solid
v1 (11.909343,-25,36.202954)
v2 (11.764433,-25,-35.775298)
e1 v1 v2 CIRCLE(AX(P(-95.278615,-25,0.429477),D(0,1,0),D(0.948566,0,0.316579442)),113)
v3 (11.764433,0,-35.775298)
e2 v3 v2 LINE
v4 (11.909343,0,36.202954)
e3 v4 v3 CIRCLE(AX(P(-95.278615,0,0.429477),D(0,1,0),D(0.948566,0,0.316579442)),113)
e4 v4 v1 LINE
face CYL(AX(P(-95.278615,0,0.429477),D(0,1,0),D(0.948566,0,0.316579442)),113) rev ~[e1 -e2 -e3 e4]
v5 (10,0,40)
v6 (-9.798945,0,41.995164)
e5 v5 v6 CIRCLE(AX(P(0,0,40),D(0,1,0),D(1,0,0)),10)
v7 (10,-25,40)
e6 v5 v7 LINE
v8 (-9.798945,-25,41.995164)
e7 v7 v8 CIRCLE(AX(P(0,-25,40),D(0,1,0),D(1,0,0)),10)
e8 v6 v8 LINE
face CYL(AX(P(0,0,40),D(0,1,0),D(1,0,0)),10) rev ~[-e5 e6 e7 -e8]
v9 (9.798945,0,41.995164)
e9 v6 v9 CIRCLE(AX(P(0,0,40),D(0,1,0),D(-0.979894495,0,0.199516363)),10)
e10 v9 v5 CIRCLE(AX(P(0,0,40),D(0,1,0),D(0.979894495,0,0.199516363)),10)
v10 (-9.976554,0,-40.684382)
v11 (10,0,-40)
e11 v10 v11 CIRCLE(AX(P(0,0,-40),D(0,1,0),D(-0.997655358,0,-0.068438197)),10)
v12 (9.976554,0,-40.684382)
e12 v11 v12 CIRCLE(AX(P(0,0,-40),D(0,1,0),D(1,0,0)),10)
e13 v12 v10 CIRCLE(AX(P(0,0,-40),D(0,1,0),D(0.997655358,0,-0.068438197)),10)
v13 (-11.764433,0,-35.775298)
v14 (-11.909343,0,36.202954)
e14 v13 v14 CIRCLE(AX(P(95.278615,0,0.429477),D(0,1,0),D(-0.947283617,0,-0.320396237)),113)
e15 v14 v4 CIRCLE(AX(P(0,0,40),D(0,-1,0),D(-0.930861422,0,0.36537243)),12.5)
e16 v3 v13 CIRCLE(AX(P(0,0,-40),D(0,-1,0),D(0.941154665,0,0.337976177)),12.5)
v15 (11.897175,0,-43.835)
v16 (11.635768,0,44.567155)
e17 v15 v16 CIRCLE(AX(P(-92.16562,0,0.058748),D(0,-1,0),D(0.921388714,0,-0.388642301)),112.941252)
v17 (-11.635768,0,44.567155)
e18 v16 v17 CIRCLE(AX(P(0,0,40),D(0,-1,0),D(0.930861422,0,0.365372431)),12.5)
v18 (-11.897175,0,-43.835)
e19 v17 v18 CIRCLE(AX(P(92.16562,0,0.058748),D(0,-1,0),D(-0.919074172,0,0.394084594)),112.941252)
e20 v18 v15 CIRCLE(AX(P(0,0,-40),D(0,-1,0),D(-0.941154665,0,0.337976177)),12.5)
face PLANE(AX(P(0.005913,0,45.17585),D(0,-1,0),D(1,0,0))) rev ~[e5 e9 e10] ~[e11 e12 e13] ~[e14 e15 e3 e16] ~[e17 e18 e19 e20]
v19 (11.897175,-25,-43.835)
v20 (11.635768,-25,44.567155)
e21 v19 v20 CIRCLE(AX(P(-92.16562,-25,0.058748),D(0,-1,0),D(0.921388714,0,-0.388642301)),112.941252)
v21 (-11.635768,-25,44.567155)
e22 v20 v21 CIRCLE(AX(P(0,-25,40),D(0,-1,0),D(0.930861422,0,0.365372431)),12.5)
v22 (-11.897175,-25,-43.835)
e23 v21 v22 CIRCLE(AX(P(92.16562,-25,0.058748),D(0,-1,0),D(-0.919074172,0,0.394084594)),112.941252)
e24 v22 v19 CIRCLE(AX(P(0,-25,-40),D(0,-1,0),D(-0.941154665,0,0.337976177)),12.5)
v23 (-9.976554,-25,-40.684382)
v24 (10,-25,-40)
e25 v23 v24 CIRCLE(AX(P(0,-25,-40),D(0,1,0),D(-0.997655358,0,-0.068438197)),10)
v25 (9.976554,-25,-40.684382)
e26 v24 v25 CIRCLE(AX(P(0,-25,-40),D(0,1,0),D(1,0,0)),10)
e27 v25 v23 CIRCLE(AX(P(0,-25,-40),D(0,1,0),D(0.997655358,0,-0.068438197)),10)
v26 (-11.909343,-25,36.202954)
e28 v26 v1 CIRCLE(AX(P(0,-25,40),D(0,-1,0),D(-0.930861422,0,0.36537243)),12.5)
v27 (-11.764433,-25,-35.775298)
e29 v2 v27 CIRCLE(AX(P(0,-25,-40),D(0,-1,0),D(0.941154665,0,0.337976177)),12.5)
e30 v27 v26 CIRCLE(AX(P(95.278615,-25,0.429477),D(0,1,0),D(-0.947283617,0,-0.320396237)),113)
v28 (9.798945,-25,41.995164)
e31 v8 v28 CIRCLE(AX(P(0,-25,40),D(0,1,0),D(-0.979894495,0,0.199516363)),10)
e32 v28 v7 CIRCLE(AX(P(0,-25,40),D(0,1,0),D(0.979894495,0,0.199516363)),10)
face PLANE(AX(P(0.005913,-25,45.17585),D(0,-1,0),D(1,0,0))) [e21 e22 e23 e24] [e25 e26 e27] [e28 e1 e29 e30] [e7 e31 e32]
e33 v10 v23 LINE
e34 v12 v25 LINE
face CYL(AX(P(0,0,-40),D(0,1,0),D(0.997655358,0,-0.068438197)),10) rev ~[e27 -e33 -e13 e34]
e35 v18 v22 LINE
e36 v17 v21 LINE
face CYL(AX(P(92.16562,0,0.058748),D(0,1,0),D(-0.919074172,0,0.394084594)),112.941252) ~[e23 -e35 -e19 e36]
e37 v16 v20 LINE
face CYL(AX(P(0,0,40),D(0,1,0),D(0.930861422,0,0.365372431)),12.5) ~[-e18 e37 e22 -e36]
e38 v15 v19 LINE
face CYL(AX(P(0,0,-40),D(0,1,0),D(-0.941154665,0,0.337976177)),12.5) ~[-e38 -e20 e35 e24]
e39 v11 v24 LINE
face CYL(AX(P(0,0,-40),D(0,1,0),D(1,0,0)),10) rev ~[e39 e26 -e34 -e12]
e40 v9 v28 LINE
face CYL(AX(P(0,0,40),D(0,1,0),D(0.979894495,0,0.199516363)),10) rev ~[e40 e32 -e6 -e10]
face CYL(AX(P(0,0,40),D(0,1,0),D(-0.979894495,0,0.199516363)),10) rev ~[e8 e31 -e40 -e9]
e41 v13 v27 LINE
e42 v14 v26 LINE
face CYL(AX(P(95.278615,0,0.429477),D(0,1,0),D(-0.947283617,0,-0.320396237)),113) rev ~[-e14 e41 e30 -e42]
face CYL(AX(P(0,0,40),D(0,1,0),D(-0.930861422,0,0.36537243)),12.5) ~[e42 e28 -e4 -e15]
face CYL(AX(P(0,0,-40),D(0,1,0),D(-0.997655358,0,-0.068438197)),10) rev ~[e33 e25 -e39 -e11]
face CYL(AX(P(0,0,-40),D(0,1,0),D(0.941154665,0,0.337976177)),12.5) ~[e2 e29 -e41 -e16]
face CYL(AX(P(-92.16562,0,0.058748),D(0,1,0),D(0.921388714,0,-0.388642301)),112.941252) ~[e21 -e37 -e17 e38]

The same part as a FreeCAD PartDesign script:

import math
import FreeCAD as App
import Part
import Sketcher
from FreeCAD import Vector

doc = App.newDocument("Part")
body = doc.addObject("PartDesign::Body", "Body")

sketch1 = body.newObject("Sketcher::SketchObject", "Sketch")
sketch1.AttachmentSupport = (doc.getObject("XZ_Plane"), [""])
sketch1.MapMode = "FlatFace"
sketch1.addGeometry(Part.ArcOfCircle(Part.Circle(Vector(-92.2, 0.1, 0), Vector(0, 0, 1), 112.9), math.radians(-23), math.radians(23)), False)
sketch1.addGeometry(Part.ArcOfCircle(Part.Circle(Vector(0, 40, 0), Vector(0, 0, 1), 12.5), math.radians(21), math.radians(159)), False)
sketch1.addGeometry(Part.ArcOfCircle(Part.Circle(Vector(92.2, 0.1, 0), Vector(0, 0, 1), 112.9), math.radians(157), math.radians(203)), False)
sketch1.addGeometry(Part.ArcOfCircle(Part.Circle(Vector(0, -40, 0), Vector(0, 0, 1), 12.5), math.radians(-162), math.radians(-18)), False)
sketch1.addGeometry(Part.ArcOfCircle(Part.Circle(Vector(-95.3, 0.4, 0), Vector(0, 0, 1), 113), math.radians(-19), math.radians(18)), False)
sketch1.addGeometry(Part.ArcOfCircle(Part.Circle(Vector(0, -40, 0), Vector(0, 0, 1), 12.5), math.radians(20), math.radians(160)), False)
sketch1.addGeometry(Part.ArcOfCircle(Part.Circle(Vector(95.3, 0.4, 0), Vector(0, 0, 1), 113), math.radians(162), math.radians(199)), False)
sketch1.addGeometry(Part.ArcOfCircle(Part.Circle(Vector(0, 40, 0), Vector(0, 0, 1), 12.5), math.radians(-162), math.radians(-18)), False)
sketch1.addGeometry(Part.ArcOfCircle(Part.Circle(Vector(0, 40, 0), Vector(0, 0, 1), 10), math.radians(12), math.radians(168)), False)
sketch1.addGeometry(Part.ArcOfCircle(Part.Circle(Vector(0, 40, 0), Vector(0, 0, 1), 10), math.radians(0), math.radians(11.51)), False)
sketch1.addGeometry(Part.ArcOfCircle(Part.Circle(Vector(0, 40, 0), Vector(0, 0, 1), 10), math.radians(168), math.radians(360)), False)
sketch1.addGeometry(Part.ArcOfCircle(Part.Circle(Vector(0, -40, 0), Vector(0, 0, 1), 10), math.radians(-176), math.radians(-4)), False)
sketch1.addGeometry(Part.ArcOfCircle(Part.Circle(Vector(0, -40, 0), Vector(0, 0, 1), 10), math.radians(0), math.radians(184)), False)
sketch1.addGeometry(Part.ArcOfCircle(Part.Circle(Vector(0, -40, 0), Vector(0, 0, 1), 10), math.radians(-3.92), math.radians(0)), False)
sketch1.addConstraint(Sketcher.Constraint("Coincident", 0, 2, 1, 1))
sketch1.addConstraint(Sketcher.Constraint("Coincident", 1, 2, 2, 1))
sketch1.addConstraint(Sketcher.Constraint("Coincident", 2, 2, 3, 1))
sketch1.addConstraint(Sketcher.Constraint("Coincident", 3, 2, 0, 1))
sketch1.addConstraint(Sketcher.Constraint("Coincident", 4, 1, 5, 1))
sketch1.addConstraint(Sketcher.Constraint("Coincident", 5, 2, 6, 2))
sketch1.addConstraint(Sketcher.Constraint("Coincident", 6, 1, 7, 1))
sketch1.addConstraint(Sketcher.Constraint("Coincident", 7, 2, 4, 2))
sketch1.addConstraint(Sketcher.Constraint("Tangent", 8, 1, 9, 2))
sketch1.addConstraint(Sketcher.Constraint("Tangent", 9, 1, 10, 2))
sketch1.addConstraint(Sketcher.Constraint("Tangent", 10, 1, 8, 2))
sketch1.addConstraint(Sketcher.Constraint("Tangent", 11, 1, 12, 2))
sketch1.addConstraint(Sketcher.Constraint("Tangent", 12, 1, 13, 2))
sketch1.addConstraint(Sketcher.Constraint("Tangent", 13, 1, 11, 2))
sketch1.addConstraint(Sketcher.Constraint("Coincident", 5, 3, 3, 3))
sketch1.addConstraint(Sketcher.Constraint("Coincident", 7, 3, 1, 3))
sketch1.addConstraint(Sketcher.Constraint("Coincident", 8, 3, 1, 3))
sketch1.addConstraint(Sketcher.Constraint("Coincident", 11, 3, 3, 3))
sketch1.addConstraint(Sketcher.Constraint("Equal", 0, 2))
sketch1.addConstraint(Sketcher.Constraint("Equal", 1, 3))
sketch1.addConstraint(Sketcher.Constraint("Equal", 3, 5))
sketch1.addConstraint(Sketcher.Constraint("Equal", 4, 6))
sketch1.addConstraint(Sketcher.Constraint("Equal", 5, 7))
sketch1.addConstraint(Sketcher.Constraint("Equal", 10, 11))
sketch1.addConstraint(Sketcher.Constraint("Symmetric", 1, 3, 3, 3, -1, 1))
sketch1.addConstraint(Sketcher.Constraint("Symmetric", 0, 3, 2, 3, -2))
sketch1.addConstraint(Sketcher.Constraint("Symmetric", 4, 3, 6, 3, -2))
sketch1.addConstraint(Sketcher.Constraint("Symmetric", 8, 1, 10, 1, -2))
sketch1.addConstraint(Sketcher.Constraint("Horizontal", 10, 3, 9, 1))
sketch1.addConstraint(Sketcher.Constraint("Horizontal", 13, 3, 12, 1))
sketch1.addConstraint(Sketcher.Constraint("Horizontal", 11, 1, 13, 1))
sketch1.addConstraint(Sketcher.Constraint("Radius", 4, 113.0))
sketch1.addConstraint(Sketcher.Constraint("Radius", 8, 10.0))
sketch1.addConstraint(Sketcher.Constraint("Radius", 1, 12.5))
sketch1.addConstraint(Sketcher.Constraint("DistanceY", -1, 1, 1, 3, 40.0))
sketch1.addConstraint(Sketcher.Constraint("DistanceY", 2, 2, -1, 1, 43.835))
sketch1.addConstraint(Sketcher.Constraint("Radius", 0, 112.941252))
sketch1.addConstraint(Sketcher.Constraint("DistanceY", 6, 1, 1, 2, 8.364201))
sketch1.addConstraint(Sketcher.Constraint("DistanceX", 0, 3, -1, 1, 92.16562))
sketch1.addConstraint(Sketcher.Constraint("DistanceY", 11, 1, -1, 1, 40.684382))
sketch1.addConstraint(Sketcher.Constraint("DistanceY", 0, 3, 4, 3, 0.370729))
sketch1.addConstraint(Sketcher.Constraint("DistanceY", 8, 1, 0, 2, 2.571992))
pad1 = body.newObject("PartDesign::Pad", "Pad")
pad1.Profile = sketch1
pad1.Length = 25

doc.recompute()
